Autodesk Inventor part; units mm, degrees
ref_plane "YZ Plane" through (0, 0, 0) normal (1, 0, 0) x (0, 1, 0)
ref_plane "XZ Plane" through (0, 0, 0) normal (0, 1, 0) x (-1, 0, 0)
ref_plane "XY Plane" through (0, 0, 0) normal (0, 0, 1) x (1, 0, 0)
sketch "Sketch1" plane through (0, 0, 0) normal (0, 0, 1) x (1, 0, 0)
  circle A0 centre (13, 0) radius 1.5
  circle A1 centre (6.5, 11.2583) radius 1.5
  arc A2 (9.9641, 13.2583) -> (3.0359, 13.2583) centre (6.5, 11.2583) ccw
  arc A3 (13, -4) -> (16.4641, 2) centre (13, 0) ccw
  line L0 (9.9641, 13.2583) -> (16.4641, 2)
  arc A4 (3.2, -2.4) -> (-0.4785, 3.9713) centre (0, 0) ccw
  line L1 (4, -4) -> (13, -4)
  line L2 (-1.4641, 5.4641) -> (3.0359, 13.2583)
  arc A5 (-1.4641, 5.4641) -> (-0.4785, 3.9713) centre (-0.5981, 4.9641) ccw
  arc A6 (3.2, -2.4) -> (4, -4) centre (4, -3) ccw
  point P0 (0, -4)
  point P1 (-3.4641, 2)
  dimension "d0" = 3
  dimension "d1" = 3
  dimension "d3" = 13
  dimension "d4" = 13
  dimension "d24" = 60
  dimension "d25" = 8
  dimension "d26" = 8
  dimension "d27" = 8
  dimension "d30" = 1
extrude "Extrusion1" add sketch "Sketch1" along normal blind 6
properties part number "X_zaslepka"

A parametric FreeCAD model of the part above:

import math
import FreeCAD as App
import Part
import Sketcher
Q = App.Units.Quantity

doc = App.newDocument("Part")
body = doc.addObject("PartDesign::Body", "Body")

# Sketch on XY plane
sketch1 = doc.addObject("Sketcher::SketchObject", "Sketch")
body.addObject(sketch1)
sketch1.AttachmentSupport = (doc.XY_Plane, [""])
sketch1.MapMode = "FlatFace"
sketch1.addGeometry([
    Part.LineSegment(App.Vector(16.5, 2, 0), App.Vector(10, 13.3, 0)),  # 0
    Part.ArcOfCircle(Part.Circle(App.Vector(6.5, 11.3, 0), App.Vector(0, 0, 1), 4), math.radians(30), math.radians(150)),  # 1
    Part.LineSegment(App.Vector(3, 13.3, 0), App.Vector(-1.5, 5.5, 0)),  # 2
    Part.ArcOfCircle(Part.Circle(App.Vector(-0.6, 5, 0), App.Vector(0, 0, 1), 1), math.radians(150), math.radians(277)),  # 3
    Part.ArcOfCircle(Part.Circle(App.Vector(0, 0, 0), App.Vector(0, 0, 1), 4), math.radians(-37), math.radians(97)),  # 4
    Part.ArcOfCircle(Part.Circle(App.Vector(4, -3, 0), App.Vector(0, 0, 1), 1), math.radians(143), math.radians(270)),  # 5
    Part.LineSegment(App.Vector(4, -4, 0), App.Vector(13, -4, 0)),  # 6
    Part.ArcOfCircle(Part.Circle(App.Vector(13, 0, 0), App.Vector(0, 0, 1), 4), math.radians(-90), math.radians(30)),  # 7
    Part.Circle(App.Vector(13, 0, 0), App.Vector(0, 0, 1), 1.5),  # 8
    Part.Circle(App.Vector(6.5, 11.3, 0), App.Vector(0, 0, 1), 1.5),  # 9
], False)
sketch1.addConstraint([
    Sketcher.Constraint("Tangent", 0, 2, 1, 1),
    Sketcher.Constraint("Tangent", 1, 2, 2, 1),
    Sketcher.Constraint("Tangent", 2, 2, 3, 1),
    Sketcher.Constraint("Tangent", 3, 2, 4, 2),
    Sketcher.Constraint("Tangent", 4, 1, 5, 1),
    Sketcher.Constraint("Tangent", 5, 2, 6, 1),
    Sketcher.Constraint("Tangent", 6, 2, 7, 1),
    Sketcher.Constraint("Tangent", 7, 2, 0, 1),
    Sketcher.Constraint("Horizontal", 6),
    Sketcher.Constraint("Coincident", 4, 3, -1, 1),
    Sketcher.Constraint("Coincident", 8, 3, 7, 3),
    Sketcher.Constraint("Coincident", 9, 3, 1, 3),
    Sketcher.Constraint("Equal", 1, 4),
    Sketcher.Constraint("Equal", 3, 5),
    Sketcher.Constraint("Equal", 4, 7),
    Sketcher.Constraint("Equal", 8, 9),
    Sketcher.Constraint("PointOnObject", 7, 3, -1),
    Sketcher.Constraint("Horizontal", 0, 2, 1, 2),
    Sketcher.Constraint("Diameter", 8, Q("3 mm")),
    Sketcher.Constraint("Radius", 1, Q("4 mm")),
    Sketcher.Constraint("Radius", 3, Q("1 mm")),
    Sketcher.Constraint("Distance", 0, Q("13 mm")),
    Sketcher.Constraint("DistanceX", -1, 1, 7, 3, Q("13 mm")),
    Sketcher.Constraint("Angle", 0, Q("120 deg")),
])
pad1 = doc.addObject("PartDesign::Pad", "Pad")
body.addObject(pad1)
pad1.Profile = sketch1
pad1.Length = 6

doc.recompute()
